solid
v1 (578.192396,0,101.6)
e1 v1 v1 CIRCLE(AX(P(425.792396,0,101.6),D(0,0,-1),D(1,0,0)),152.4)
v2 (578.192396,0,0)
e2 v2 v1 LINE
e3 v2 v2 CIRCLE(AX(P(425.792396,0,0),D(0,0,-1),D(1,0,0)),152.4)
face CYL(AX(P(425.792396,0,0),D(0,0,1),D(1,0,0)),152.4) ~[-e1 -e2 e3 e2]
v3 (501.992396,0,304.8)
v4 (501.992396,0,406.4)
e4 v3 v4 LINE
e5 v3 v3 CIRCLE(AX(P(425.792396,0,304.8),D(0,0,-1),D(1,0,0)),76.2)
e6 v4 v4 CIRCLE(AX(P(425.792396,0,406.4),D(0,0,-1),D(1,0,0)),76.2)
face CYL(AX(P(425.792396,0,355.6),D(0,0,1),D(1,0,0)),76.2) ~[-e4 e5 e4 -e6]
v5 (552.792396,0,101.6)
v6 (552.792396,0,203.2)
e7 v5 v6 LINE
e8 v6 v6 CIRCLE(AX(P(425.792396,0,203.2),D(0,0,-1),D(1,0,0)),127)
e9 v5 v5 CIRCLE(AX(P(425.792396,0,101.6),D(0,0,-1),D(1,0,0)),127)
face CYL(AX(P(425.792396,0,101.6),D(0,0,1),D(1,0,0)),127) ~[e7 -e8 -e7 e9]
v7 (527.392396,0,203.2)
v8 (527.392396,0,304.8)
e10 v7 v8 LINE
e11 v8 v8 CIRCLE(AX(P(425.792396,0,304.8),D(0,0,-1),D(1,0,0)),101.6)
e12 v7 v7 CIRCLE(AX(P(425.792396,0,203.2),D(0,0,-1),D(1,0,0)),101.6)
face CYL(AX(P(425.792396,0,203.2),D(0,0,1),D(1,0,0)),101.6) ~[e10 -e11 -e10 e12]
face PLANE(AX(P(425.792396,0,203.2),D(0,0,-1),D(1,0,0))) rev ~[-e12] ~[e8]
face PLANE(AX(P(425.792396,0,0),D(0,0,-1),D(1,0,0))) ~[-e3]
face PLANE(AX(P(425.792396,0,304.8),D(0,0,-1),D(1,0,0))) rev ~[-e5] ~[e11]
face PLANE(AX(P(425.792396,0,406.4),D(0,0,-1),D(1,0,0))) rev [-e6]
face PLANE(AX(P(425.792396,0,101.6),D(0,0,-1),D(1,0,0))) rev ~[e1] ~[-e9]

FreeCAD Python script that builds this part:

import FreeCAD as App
import Part
import Sketcher
Q = App.Units.Quantity


def add_polygon(sketch, points):
    """Adds a closed chain of lines whose ends are joined by coincident constraints."""
    first, n = sketch.GeometryCount, len(points)
    for a, b in zip(points, points[1:] + points[:1]):
        sketch.addGeometry(Part.LineSegment(App.Vector(*a, 0), App.Vector(*b, 0)), False)
    for i in range(n):
        sketch.addConstraint(Sketcher.Constraint("Coincident", first + i, 2, first + (i + 1) % n, 1))

doc = App.newDocument("Part")
body = doc.addObject("PartDesign::Body", "Body")

# Sketch on XZ plane
sketch1 = body.newObject("Sketcher::SketchObject", "Sketch")
sketch1.AttachmentSupport = (doc.getObject("XZ_Plane"), [""])
sketch1.MapMode = "FlatFace"
add_polygon(sketch1, [(425.792396, 0), (578.192396, 0), (578.192396, 101.6), (552.792396, 101.6), (552.792396, 203.2), (527.392396, 203.2), (527.392396, 304.8), (501.992396, 304.8), (501.992396, 406.4), (425.792396, 406.4)])  # lines 0-9
sketch1.addGeometry(Part.LineSegment(App.Vector(425.792396, 406.4, 0), App.Vector(425.792396, 0, 0)), True)  # axis
sketch1.addConstraint([
    Sketcher.Constraint("Horizontal", 0),
    Sketcher.Constraint("Vertical", 1),
    Sketcher.Constraint("Horizontal", 2),
    Sketcher.Constraint("Vertical", 3),
    Sketcher.Constraint("Horizontal", 4),
    Sketcher.Constraint("Vertical", 5),
    Sketcher.Constraint("Horizontal", 6),
    Sketcher.Constraint("Vertical", 7),
    Sketcher.Constraint("Horizontal", 8),
    Sketcher.Constraint("Vertical", 9),
    Sketcher.Constraint("Vertical", 10),
    Sketcher.Constraint("Coincident", 10, 1, 8, 2),
    Sketcher.Constraint("PointOnObject", 0, 2, -1),
    Sketcher.Constraint("PointOnObject", 10, 2, -1),
    Sketcher.Constraint("Equal", 2, 4),
    Sketcher.Constraint("Equal", 4, 6),
    Sketcher.Constraint("Equal", 1, 3),
    Sketcher.Constraint("Equal", 3, 5),
    Sketcher.Constraint("Equal", 5, 7),
    Sketcher.Constraint("DistanceX", 0, 1, 0, 2, Q("6 in")),
    Sketcher.Constraint("DistanceX", 2, 2, 2, 1, Q("1 in")),
    Sketcher.Constraint("DistanceY", 1, 1, 1, 2, Q("4 in")),
    Sketcher.Constraint("DistanceX", -1, 1, 0, 2, 578.192396),
])
revolution = body.newObject("PartDesign::Revolution", "Revolution")
revolution.Profile = sketch1
revolution.ReferenceAxis = (sketch1, ["Axis0"])
revolution.Angle = 360

doc.recompute()
